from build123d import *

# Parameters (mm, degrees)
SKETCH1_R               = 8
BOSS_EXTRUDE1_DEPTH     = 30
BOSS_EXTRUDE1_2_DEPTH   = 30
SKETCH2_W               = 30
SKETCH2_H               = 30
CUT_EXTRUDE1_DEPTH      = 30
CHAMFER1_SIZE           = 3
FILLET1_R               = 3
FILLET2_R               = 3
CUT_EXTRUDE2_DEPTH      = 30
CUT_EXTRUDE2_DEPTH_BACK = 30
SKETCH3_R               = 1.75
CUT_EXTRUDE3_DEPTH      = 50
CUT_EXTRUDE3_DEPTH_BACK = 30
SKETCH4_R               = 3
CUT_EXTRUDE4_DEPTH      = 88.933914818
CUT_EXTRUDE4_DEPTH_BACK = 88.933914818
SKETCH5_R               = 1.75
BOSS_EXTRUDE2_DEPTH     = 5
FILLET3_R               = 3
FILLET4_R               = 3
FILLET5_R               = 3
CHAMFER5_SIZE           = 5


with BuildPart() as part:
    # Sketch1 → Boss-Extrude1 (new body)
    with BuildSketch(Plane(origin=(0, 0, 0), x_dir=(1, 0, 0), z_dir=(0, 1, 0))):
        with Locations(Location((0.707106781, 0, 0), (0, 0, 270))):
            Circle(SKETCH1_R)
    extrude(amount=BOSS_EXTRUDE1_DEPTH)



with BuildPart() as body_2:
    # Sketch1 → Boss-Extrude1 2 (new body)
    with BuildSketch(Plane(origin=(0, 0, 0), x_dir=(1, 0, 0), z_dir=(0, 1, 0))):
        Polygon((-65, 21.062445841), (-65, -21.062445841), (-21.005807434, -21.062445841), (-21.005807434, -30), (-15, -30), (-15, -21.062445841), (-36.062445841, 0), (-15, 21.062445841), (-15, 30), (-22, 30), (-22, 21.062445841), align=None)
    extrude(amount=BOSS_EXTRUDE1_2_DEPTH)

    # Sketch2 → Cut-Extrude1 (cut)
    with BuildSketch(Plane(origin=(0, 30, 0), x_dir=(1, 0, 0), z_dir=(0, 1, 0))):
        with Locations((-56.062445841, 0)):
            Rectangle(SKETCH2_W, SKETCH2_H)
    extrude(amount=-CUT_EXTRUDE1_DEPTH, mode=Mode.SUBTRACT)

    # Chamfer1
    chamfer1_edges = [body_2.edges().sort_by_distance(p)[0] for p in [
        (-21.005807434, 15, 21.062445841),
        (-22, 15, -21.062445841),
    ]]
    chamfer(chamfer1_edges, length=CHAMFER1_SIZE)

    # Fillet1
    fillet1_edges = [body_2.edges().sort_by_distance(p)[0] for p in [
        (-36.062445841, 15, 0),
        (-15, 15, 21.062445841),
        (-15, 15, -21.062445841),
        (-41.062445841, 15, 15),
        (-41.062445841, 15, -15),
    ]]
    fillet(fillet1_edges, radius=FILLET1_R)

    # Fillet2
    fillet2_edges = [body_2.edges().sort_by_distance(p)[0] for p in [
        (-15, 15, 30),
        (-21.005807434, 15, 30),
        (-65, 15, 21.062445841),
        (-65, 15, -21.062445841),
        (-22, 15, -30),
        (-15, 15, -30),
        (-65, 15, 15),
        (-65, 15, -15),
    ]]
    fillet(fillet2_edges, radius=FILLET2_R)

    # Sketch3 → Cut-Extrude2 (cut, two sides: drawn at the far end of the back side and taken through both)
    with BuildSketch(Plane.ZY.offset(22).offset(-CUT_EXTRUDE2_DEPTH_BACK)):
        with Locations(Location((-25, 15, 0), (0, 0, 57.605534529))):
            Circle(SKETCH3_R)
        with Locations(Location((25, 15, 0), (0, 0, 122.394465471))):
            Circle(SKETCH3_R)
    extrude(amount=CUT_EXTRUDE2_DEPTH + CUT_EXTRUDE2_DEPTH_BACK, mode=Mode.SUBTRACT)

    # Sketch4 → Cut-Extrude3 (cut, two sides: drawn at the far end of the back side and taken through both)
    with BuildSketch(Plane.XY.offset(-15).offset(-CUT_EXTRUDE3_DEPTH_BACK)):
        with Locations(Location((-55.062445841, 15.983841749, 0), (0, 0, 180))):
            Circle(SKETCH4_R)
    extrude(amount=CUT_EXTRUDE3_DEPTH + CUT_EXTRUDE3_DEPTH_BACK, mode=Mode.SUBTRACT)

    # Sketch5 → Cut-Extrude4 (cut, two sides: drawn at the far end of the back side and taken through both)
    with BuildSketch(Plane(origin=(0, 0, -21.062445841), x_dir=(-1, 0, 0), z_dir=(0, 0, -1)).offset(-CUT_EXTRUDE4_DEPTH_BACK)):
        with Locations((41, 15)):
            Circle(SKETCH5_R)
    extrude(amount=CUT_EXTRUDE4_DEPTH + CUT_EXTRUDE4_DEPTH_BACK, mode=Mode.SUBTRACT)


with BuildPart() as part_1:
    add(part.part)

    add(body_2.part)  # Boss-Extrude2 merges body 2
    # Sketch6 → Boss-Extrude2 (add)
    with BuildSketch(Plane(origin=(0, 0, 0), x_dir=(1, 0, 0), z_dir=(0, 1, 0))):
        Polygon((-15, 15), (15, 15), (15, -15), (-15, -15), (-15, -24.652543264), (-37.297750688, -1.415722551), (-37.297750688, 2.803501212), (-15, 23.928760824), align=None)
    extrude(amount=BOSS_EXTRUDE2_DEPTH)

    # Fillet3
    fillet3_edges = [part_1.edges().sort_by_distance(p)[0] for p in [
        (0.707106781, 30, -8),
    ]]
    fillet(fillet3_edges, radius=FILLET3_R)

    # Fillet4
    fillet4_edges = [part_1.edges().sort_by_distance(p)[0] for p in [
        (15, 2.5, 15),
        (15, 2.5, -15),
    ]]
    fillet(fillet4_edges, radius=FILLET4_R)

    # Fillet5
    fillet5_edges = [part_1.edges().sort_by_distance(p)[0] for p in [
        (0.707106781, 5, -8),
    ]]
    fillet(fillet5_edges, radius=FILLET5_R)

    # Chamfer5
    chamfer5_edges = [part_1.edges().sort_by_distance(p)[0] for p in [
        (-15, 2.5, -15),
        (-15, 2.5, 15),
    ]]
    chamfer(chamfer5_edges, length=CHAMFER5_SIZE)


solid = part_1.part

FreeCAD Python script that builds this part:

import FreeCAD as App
import Part
import Sketcher

V = App.Vector


def edges_at(feature, points):
    """Names of the edges that pass closest to the given points."""
    edges = feature.Shape.Edges
    near = lambda p: min(range(len(edges)), key=lambda i: edges[i].distToShape(Part.Vertex(*p))[0])
    return sorted({f"Edge{near(p) + 1}" for p in points})


def add_polygon(sketch, points):
    """Adds a closed chain of lines whose ends are joined by coincident constraints."""
    first, n = sketch.GeometryCount, len(points)
    for a, b in zip(points, points[1:] + points[:1]):
        sketch.addGeometry(Part.LineSegment(App.Vector(*a, 0), App.Vector(*b, 0)), False)
    for i in range(n):
        sketch.addConstraint(Sketcher.Constraint("Coincident", first + i, 2, first + (i + 1) % n, 1))

doc = App.newDocument("Part")
body = doc.addObject("PartDesign::Body", "Body")

sketch1 = body.newObject("Sketcher::SketchObject", "Sketch")
sketch1.AttachmentSupport = (doc.getObject("XZ_Plane"), [""])
sketch1.MapMode = "FlatFace"
sketch1.addGeometry(Part.Circle(V(1, 0, 0), V(0, 0, 1), 8), False)
sketch1.addConstraint([
    Sketcher.Constraint("PointOnObject", 0, 3, -1),
    Sketcher.Constraint("Diameter", 0, 16.0),
    Sketcher.Constraint("DistanceX", -1, 1, 0, 3, 0.707107),
])
pad1 = body.newObject("PartDesign::Pad", "Pad")
pad1.Profile = sketch1
pad1.Length = 30
pad1.Reversed = True
body2 = doc.addObject("PartDesign::Body", "Body001")

sketch2 = body2.newObject("Sketcher::SketchObject", "Sketch001")
sketch2.AttachmentSupport = (doc.getObject("XZ_Plane001"), [""])
sketch2.MapMode = "FlatFace"
add_polygon(sketch2, [(-65, -21), (-65, 21), (-21, 21), (-21, 30), (-15, 30), (-15, 21), (-36, 0), (-15, -21), (-15, -30), (-22, -30), (-22, -21)])
sketch2.addConstraint([
    Sketcher.Constraint("Vertical", 0),
    Sketcher.Constraint("Horizontal", 1),
    Sketcher.Constraint("Vertical", 2),
    Sketcher.Constraint("Horizontal", 3),
    Sketcher.Constraint("Vertical", 4),
    Sketcher.Constraint("Vertical", 7),
    Sketcher.Constraint("Horizontal", 8),
    Sketcher.Constraint("Vertical", 9),
    Sketcher.Constraint("Horizontal", 10),
    Sketcher.Constraint("Symmetric", 4, 2, 6, 2, -1),
    Sketcher.Constraint("PointOnObject", 5, 2, -1),
    Sketcher.Constraint("Perpendicular", 5, 6),
    Sketcher.Constraint("Horizontal", 1, 2, 4, 2),
    Sketcher.Constraint("Horizontal", 6, 2, 9, 2),
    Sketcher.Constraint("Equal", 4, 7),
    Sketcher.Constraint("DistanceX", 8, 2, 8, 1, 7.0),
    Sketcher.Constraint("DistanceX", 10, 2, 10, 1, 43.0),
    Sketcher.Constraint("DistanceX", 0, 2, -1, 1, 65.0),
    Sketcher.Constraint("DistanceY", -1, 1, 2, 2, 30.0),
    Sketcher.Constraint("DistanceY", 0, 1, 0, 2, 42.124892),
    Sketcher.Constraint("DistanceX", 1, 1, 1, 2, 43.994193),
])
pad2 = body2.newObject("PartDesign::Pad", "Pad001")
pad2.Profile = sketch2
pad2.Length = 30
pad2.Reversed = True

sketch3 = body2.newObject("Sketcher::SketchObject", "Sketch002")
sketch3.AttachmentSupport = (doc.getObject("XZ_Plane001"), [""])
sketch3.MapMode = "FlatFace"
sketch3.AttachmentOffset = App.Placement(V(0, 0, -30), App.Rotation())
add_polygon(sketch3, [(-71, -15), (-71, 15), (-41, 15), (-41, -15)])
sketch3.addConstraint([
    Sketcher.Constraint("Vertical", 0),
    Sketcher.Constraint("Horizontal", 1),
    Sketcher.Constraint("Vertical", 2),
    Sketcher.Constraint("Horizontal", 3),
    Sketcher.Constraint("Equal", 3, 0),
    Sketcher.Constraint("DistanceX", 1, 1, 1, 2, 30.0),
    Sketcher.Constraint("DistanceY", -1, 1, 0, 2, 15.0),
    Sketcher.Constraint("DistanceX", 0, 2, -1, 1, 71.062446),
])
pocket1 = body2.newObject("PartDesign::Pocket", "Pocket")
pocket1.Profile = sketch3
pocket1.Length = 30
pocket1.Reversed = True
doc.recompute()

chamfer = body2.newObject("PartDesign::Chamfer", "Chamfer")
chamfer.Base = (pocket1, edges_at(pocket1, [(-21.006, 15, 21.062), (-22, 15, -21.062)]))
chamfer.Size = 3
doc.recompute()

fillet = body2.newObject("PartDesign::Fillet", "Fillet")
fillet.Base = (chamfer, edges_at(chamfer, [
    (-36.062, 15, 0),
    (-15, 15, 21.062),
    (-15, 15, -21.062),
    (-41.062, 15, 15),
    (-41.062, 15, -15),
]))
fillet.Radius = 3
doc.recompute()

fillet2 = body2.newObject("PartDesign::Fillet", "Fillet001")
fillet2.Base = (fillet, edges_at(fillet, [
    (-15, 15, 30),
    (-21.006, 15, 30),
    (-65, 15, 21.062),
    (-65, 15, -21.062),
    (-22, 15, -30),
    (-15, 15, -30),
    (-65, 15, 15),
    (-65, 15, -15),
]))
fillet2.Radius = 3

sketch4 = body2.newObject("Sketcher::SketchObject", "Sketch003")
sketch4.AttachmentSupport = (doc.getObject("YZ_Plane001"), [""])
sketch4.MapMode = "FlatFace"
sketch4.AttachmentOffset = App.Placement(V(0, 0, -22), App.Rotation())
sketch4.addGeometry([
    Part.Circle(V(15, -25, 0), V(0, 0, 1), 1.8),
    Part.Circle(V(15, 25, 0), V(0, 0, 1), 1.8),
], False)
sketch4.addConstraint([
    Sketcher.Constraint("Equal", 0, 1),
    Sketcher.Constraint("Symmetric", 0, 3, 1, 3, -1),
    Sketcher.Constraint("Diameter", 0, 3.5),
    Sketcher.Constraint("DistanceX", -1, 1, 0, 3, 15.0),
    Sketcher.Constraint("DistanceY", 0, 3, -1, 1, 25.0),
])
pocket2 = body2.newObject("PartDesign::Pocket", "Pocket001")
pocket2.Profile = sketch4
pocket2.Type = "ThroughAll"
pocket2.Midplane = True

sketch5 = body2.newObject("Sketcher::SketchObject", "Sketch004")
sketch5.AttachmentSupport = (doc.getObject("XY_Plane001"), [""])
sketch5.MapMode = "FlatFace"
sketch5.AttachmentOffset = App.Placement(V(0, 0, -15), App.Rotation())
sketch5.addGeometry(Part.Circle(V(-55.1, 16, 0), V(0, 0, 1), 3), False)
sketch5.addConstraint([
    Sketcher.Constraint("Diameter", 0, 6.0),
    Sketcher.Constraint("DistanceY", -1, 1, 0, 3, 15.983842),
    Sketcher.Constraint("DistanceX", 0, 3, -1, 1, 55.062446),
])
pocket3 = body2.newObject("PartDesign::Pocket", "Pocket002")
pocket3.Profile = sketch5
pocket3.Type = "ThroughAll"
pocket3.Midplane = True

sketch6 = body2.newObject("Sketcher::SketchObject", "Sketch005")
sketch6.AttachmentSupport = (doc.getObject("XY_Plane001"), [""])
sketch6.MapMode = "FlatFace"
sketch6.AttachmentOffset = App.Placement(V(0, 0, -21.062446), App.Rotation())
sketch6.addGeometry(Part.Circle(V(-41, 15, 0), V(0, 0, 1), 1.8), False)
sketch6.addConstraint([
    Sketcher.Constraint("Diameter", 0, 3.5),
    Sketcher.Constraint("DistanceX", 0, 3, -1, 1, 41.0),
    Sketcher.Constraint("DistanceY", -1, 1, 0, 3, 15.0),
])
pocket4 = body2.newObject("PartDesign::Pocket", "Pocket003")
pocket4.Profile = sketch6
pocket4.Type = "ThroughAll"
pocket4.Midplane = True
body.AllowCompound = True
doc.recompute()

boolean = body.newObject("PartDesign::Boolean", "Boolean")
boolean.Type = "Fuse"
boolean.addObjects([body2])

sketch7 = body.newObject("Sketcher::SketchObject", "Sketch006")
sketch7.AttachmentSupport = (doc.getObject("XZ_Plane"), [""])
sketch7.MapMode = "FlatFace"
add_polygon(sketch7, [(15, -15), (-15, -15), (-15, -23.9), (-37.3, -2.8), (-37.3, 1.4), (-15, 24.7), (-15, 15), (15, 15)])
sketch7.addConstraint([
    Sketcher.Constraint("Horizontal", 0),
    Sketcher.Constraint("Vertical", 1),
    Sketcher.Constraint("Vertical", 3),
    Sketcher.Constraint("Vertical", 5),
    Sketcher.Constraint("Horizontal", 6),
    Sketcher.Constraint("Vertical", 7),
    Sketcher.Constraint("Symmetric", 0, 2, 6, 2, -1, 1),
    Sketcher.Constraint("Vertical", 1, 2, 4, 2),
    Sketcher.Constraint("Equal", 6, 7),
    Sketcher.Constraint("DistanceX", 0, 2, 0, 1, 30.0),
    Sketcher.Constraint("DistanceY", 1, 2, 1, 1, 8.928761),
    Sketcher.Constraint("DistanceY", 2, 2, -1, 1, 2.803501),
    Sketcher.Constraint("Distance", 4, 32.204651),
    Sketcher.Constraint("DistanceY", 3, 1, 3, 2, 4.219224),
    Sketcher.Constraint("DistanceY", 5, 2, 5, 1, 9.652543),
])
pad3 = body.newObject("PartDesign::Pad", "Pad002")
pad3.Profile = sketch7
pad3.Length = 5
pad3.Reversed = True
doc.recompute()

fillet3 = body.newObject("PartDesign::Fillet", "Fillet002")
fillet3.Base = (pad3, edges_at(pad3, [(0.707, 30, -8)]))
fillet3.Radius = 3
doc.recompute()

fillet4 = body.newObject("PartDesign::Fillet", "Fillet003")
fillet4.Base = (fillet3, edges_at(fillet3, [(15, 2.5, 15), (15, 2.5, -15)]))
fillet4.Radius = 3
doc.recompute()

fillet5 = body.newObject("PartDesign::Fillet", "Fillet004")
fillet5.Base = (fillet4, edges_at(fillet4, [(0.707, 5, -8)]))
fillet5.Radius = 3
doc.recompute()

chamfer2 = body.newObject("PartDesign::Chamfer", "Chamfer001")
chamfer2.Base = (fillet5, edges_at(fillet5, [(-15, 2.5, -15), (-15, 2.5, 15)]))
chamfer2.Size = 5

doc.recompute()
